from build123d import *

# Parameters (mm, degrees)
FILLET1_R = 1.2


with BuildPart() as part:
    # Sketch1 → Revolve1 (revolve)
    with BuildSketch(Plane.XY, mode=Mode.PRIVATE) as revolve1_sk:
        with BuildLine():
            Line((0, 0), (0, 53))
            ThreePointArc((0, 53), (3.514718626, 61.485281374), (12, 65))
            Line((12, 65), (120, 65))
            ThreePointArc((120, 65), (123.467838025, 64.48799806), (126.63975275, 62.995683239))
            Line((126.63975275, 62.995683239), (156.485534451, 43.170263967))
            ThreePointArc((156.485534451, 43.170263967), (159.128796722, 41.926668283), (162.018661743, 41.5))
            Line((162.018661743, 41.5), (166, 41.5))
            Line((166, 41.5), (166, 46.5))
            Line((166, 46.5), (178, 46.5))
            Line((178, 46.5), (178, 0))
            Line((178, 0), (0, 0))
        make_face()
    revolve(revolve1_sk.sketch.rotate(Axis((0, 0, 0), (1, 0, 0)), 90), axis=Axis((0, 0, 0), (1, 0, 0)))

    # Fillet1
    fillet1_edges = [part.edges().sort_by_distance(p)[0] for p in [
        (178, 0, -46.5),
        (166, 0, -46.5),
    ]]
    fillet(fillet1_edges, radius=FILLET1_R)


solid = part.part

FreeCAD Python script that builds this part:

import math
import FreeCAD as App
import Part
import Sketcher
Q = App.Units.Quantity


def edges_at(feature, points):
    """Names of the edges that pass closest to the given points."""
    edges = feature.Shape.Edges
    near = lambda p: min(range(len(edges)), key=lambda i: edges[i].distToShape(Part.Vertex(*p))[0])
    return sorted({f"Edge{near(p) + 1}" for p in points})

doc = App.newDocument("Part")
body = doc.addObject("PartDesign::Body", "Body")

# Sketch on XY plane
sketch1 = body.newObject("Sketcher::SketchObject", "Sketch")
sketch1.AttachmentSupport = (doc.getObject("XY_Plane"), [""])
sketch1.MapMode = "FlatFace"
sketch1.addGeometry([
    Part.LineSegment(App.Vector(0, 53, 0), App.Vector(0, 0, 0)),  # 0
    Part.LineSegment(App.Vector(0, 0, 0), App.Vector(178, 0, 0)),  # 1
    Part.LineSegment(App.Vector(178, 0, 0), App.Vector(178, 46.5, 0)),  # 2
    Part.LineSegment(App.Vector(178, 46.5, 0), App.Vector(166, 46.5, 0)),  # 3
    Part.LineSegment(App.Vector(166, 46.5, 0), App.Vector(166, 41.5, 0)),  # 4
    Part.LineSegment(App.Vector(166, 41.5, 0), App.Vector(162, 41.5, 0)),  # 5
    Part.ArcOfCircle(Part.Circle(App.Vector(162, 51.5, 0), App.Vector(0, 0, 1), 10), math.radians(-124), math.radians(-90)),  # 6
    Part.LineSegment(App.Vector(156.5, 43.2, 0), App.Vector(126.6, 63, 0)),  # 7
    Part.ArcOfCircle(Part.Circle(App.Vector(120, 53, 0), App.Vector(0, 0, 1), 12), math.radians(56), math.radians(90)),  # 8
    Part.LineSegment(App.Vector(120, 65, 0), App.Vector(12, 65, 0)),  # 9
    Part.ArcOfCircle(Part.Circle(App.Vector(12, 53, 0), App.Vector(0, 0, 1), 12), math.radians(90), math.radians(180)),  # 10
], False)
sketch1.addConstraint([
    Sketcher.Constraint("Coincident", 0, 2, 1, 1),
    Sketcher.Constraint("Coincident", 1, 2, 2, 1),
    Sketcher.Constraint("Coincident", 2, 2, 3, 1),
    Sketcher.Constraint("Coincident", 3, 2, 4, 1),
    Sketcher.Constraint("Coincident", 4, 2, 5, 1),
    Sketcher.Constraint("Tangent", 5, 2, 6, 2),
    Sketcher.Constraint("Tangent", 6, 1, 7, 1),
    Sketcher.Constraint("Tangent", 7, 2, 8, 1),
    Sketcher.Constraint("Tangent", 8, 2, 9, 1),
    Sketcher.Constraint("Tangent", 9, 2, 10, 1),
    Sketcher.Constraint("Tangent", 10, 2, 0, 1),
    Sketcher.Constraint("Vertical", 0),
    Sketcher.Constraint("Horizontal", 1),
    Sketcher.Constraint("Vertical", 2),
    Sketcher.Constraint("Horizontal", 3),
    Sketcher.Constraint("Vertical", 4),
    Sketcher.Constraint("Horizontal", 5),
    Sketcher.Constraint("Horizontal", 9),
    Sketcher.Constraint("Coincident", 0, 2, -1, 1),
    Sketcher.Constraint("Equal", 8, 10),
    Sketcher.Constraint("Radius", 6, Q("10 mm")),
    Sketcher.Constraint("Radius", 8, Q("12 mm")),
    Sketcher.Constraint("DistanceX", 1, 1, 1, 2, Q("178 mm")),
    Sketcher.Constraint("DistanceX", 3, 2, 3, 1, Q("12 mm")),
    Sketcher.Constraint("DistanceX", 9, 2, 9, 1, Q("108 mm")),
    Sketcher.Constraint("DistanceY", 0, 2, 0, 1, Q("53 mm")),
    Sketcher.Constraint("DistanceY", 4, 2, 4, 1, Q("5 mm")),
    Sketcher.Constraint("DistanceY", 2, 1, 2, 2, Q("46.5 mm")),
    Sketcher.Constraint("DistanceX", 5, 2, 5, 1, Q("3.981338 mm")),
])
revolution = body.newObject("PartDesign::Revolution", "Revolution")
revolution.Profile = sketch1
revolution.ReferenceAxis = (sketch1, ["H_Axis"])
revolution.Angle = 360
doc.recompute()

fillet = body.newObject("PartDesign::Fillet", "Fillet")
fillet.Base = (revolution, edges_at(revolution, [(178, 0, -46.5), (166, 0, -46.5)]))
fillet.Radius = 1.2

doc.recompute()
